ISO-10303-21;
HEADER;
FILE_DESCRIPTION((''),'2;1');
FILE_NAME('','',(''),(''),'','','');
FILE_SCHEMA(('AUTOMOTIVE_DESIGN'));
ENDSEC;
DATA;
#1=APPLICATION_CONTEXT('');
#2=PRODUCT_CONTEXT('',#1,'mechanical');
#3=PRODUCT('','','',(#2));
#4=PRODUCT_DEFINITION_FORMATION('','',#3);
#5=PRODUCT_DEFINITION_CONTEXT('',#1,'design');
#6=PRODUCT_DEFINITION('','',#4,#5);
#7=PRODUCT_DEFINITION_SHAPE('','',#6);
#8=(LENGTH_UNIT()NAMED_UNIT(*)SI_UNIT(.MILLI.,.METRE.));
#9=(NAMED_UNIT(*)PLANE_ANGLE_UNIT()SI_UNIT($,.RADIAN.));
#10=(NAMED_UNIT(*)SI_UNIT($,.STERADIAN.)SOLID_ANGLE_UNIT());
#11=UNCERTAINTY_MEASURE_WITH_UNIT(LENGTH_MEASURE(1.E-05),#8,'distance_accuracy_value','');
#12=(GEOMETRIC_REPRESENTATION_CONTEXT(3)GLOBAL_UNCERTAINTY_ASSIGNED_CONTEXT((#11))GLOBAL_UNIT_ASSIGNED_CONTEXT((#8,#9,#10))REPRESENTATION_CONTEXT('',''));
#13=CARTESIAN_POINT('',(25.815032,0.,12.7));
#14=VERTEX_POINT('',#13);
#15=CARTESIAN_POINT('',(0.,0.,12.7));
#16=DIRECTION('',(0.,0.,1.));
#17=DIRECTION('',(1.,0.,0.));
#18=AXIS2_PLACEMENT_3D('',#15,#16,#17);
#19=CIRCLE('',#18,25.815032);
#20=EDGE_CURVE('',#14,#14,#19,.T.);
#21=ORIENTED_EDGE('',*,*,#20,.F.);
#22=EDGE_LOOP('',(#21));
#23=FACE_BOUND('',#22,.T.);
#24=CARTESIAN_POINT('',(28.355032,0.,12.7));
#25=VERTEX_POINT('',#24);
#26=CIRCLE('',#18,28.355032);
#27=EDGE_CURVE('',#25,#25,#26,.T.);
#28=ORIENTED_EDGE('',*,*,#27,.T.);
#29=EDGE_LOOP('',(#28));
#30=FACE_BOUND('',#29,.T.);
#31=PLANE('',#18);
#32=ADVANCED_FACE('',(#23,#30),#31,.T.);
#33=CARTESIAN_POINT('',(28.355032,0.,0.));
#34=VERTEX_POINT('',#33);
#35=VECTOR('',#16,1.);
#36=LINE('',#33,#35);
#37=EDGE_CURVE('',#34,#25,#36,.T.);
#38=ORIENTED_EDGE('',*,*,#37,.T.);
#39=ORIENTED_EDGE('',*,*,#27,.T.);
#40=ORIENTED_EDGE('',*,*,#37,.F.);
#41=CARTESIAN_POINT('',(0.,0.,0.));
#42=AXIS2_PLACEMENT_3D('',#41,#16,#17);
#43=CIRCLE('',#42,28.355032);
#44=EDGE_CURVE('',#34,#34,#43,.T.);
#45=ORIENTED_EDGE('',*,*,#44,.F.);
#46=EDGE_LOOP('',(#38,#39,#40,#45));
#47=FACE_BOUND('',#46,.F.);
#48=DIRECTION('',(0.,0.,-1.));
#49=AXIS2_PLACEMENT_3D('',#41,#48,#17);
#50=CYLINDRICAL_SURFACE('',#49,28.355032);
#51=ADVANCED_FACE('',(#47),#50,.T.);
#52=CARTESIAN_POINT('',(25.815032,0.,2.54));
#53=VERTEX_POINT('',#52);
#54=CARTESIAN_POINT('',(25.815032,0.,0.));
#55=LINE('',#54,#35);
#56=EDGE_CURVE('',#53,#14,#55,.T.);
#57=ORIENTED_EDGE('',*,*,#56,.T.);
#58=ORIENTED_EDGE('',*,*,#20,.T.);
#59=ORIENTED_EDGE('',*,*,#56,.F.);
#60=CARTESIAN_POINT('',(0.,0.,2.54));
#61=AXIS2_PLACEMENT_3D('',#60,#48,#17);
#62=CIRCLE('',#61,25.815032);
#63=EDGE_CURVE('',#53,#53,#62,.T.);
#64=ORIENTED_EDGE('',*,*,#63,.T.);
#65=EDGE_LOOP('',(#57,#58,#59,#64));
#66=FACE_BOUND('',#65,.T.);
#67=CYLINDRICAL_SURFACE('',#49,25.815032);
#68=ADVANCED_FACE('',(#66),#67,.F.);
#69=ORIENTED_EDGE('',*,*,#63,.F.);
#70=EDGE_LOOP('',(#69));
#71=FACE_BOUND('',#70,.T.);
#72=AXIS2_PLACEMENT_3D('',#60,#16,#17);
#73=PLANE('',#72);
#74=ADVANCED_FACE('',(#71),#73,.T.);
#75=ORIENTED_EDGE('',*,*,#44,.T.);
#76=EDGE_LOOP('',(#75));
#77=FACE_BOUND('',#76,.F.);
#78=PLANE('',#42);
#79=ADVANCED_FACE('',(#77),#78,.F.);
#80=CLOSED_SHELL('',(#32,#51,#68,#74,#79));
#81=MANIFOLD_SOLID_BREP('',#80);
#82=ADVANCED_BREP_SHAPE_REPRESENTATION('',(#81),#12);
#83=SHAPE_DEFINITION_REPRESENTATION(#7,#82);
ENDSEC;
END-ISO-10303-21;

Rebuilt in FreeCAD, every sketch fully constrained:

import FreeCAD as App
import Part
import Sketcher
from FreeCAD import Vector
Q = App.Units.Quantity


def faces_at(feature, points):
    """Names of the faces that lie closest to the given points."""
    faces = feature.Shape.Faces
    near = lambda p: min(range(len(faces)), key=lambda i: faces[i].distToShape(Part.Vertex(*p))[0])
    return sorted({f"Face{near(p) + 1}" for p in points})

doc = App.newDocument("Part")
body = doc.addObject("PartDesign::Body", "Body")

sketch1 = doc.addObject("Sketcher::SketchObject", "Sketch")
body.addObject(sketch1)
sketch1.AttachmentSupport = (doc.XY_Plane, [""])
sketch1.MapMode = "FlatFace"
sketch1.addGeometry(Part.Circle(Vector(0, 0, 0), Vector(0, 0, 1), 28), False)
sketch1.addConstraint(Sketcher.Constraint("Coincident", 0, 3, -1, 1))
sketch1.addConstraint(Sketcher.Constraint("Diameter", 0, 56.710064))
pad1 = doc.addObject("PartDesign::Pad", "Pad")
body.addObject(pad1)
pad1.Profile = sketch1
pad1.Length = Q("0.5 in")
doc.recompute()

thickness = doc.addObject("PartDesign::Thickness", "Thickness")
body.addObject(thickness)
thickness.Base = (pad1, faces_at(pad1, [(0, 0, 12.7)]))
thickness.Value = Q("0.1 in")
thickness.Reversed = True
thickness.Join = "Arc"

doc.recompute()
